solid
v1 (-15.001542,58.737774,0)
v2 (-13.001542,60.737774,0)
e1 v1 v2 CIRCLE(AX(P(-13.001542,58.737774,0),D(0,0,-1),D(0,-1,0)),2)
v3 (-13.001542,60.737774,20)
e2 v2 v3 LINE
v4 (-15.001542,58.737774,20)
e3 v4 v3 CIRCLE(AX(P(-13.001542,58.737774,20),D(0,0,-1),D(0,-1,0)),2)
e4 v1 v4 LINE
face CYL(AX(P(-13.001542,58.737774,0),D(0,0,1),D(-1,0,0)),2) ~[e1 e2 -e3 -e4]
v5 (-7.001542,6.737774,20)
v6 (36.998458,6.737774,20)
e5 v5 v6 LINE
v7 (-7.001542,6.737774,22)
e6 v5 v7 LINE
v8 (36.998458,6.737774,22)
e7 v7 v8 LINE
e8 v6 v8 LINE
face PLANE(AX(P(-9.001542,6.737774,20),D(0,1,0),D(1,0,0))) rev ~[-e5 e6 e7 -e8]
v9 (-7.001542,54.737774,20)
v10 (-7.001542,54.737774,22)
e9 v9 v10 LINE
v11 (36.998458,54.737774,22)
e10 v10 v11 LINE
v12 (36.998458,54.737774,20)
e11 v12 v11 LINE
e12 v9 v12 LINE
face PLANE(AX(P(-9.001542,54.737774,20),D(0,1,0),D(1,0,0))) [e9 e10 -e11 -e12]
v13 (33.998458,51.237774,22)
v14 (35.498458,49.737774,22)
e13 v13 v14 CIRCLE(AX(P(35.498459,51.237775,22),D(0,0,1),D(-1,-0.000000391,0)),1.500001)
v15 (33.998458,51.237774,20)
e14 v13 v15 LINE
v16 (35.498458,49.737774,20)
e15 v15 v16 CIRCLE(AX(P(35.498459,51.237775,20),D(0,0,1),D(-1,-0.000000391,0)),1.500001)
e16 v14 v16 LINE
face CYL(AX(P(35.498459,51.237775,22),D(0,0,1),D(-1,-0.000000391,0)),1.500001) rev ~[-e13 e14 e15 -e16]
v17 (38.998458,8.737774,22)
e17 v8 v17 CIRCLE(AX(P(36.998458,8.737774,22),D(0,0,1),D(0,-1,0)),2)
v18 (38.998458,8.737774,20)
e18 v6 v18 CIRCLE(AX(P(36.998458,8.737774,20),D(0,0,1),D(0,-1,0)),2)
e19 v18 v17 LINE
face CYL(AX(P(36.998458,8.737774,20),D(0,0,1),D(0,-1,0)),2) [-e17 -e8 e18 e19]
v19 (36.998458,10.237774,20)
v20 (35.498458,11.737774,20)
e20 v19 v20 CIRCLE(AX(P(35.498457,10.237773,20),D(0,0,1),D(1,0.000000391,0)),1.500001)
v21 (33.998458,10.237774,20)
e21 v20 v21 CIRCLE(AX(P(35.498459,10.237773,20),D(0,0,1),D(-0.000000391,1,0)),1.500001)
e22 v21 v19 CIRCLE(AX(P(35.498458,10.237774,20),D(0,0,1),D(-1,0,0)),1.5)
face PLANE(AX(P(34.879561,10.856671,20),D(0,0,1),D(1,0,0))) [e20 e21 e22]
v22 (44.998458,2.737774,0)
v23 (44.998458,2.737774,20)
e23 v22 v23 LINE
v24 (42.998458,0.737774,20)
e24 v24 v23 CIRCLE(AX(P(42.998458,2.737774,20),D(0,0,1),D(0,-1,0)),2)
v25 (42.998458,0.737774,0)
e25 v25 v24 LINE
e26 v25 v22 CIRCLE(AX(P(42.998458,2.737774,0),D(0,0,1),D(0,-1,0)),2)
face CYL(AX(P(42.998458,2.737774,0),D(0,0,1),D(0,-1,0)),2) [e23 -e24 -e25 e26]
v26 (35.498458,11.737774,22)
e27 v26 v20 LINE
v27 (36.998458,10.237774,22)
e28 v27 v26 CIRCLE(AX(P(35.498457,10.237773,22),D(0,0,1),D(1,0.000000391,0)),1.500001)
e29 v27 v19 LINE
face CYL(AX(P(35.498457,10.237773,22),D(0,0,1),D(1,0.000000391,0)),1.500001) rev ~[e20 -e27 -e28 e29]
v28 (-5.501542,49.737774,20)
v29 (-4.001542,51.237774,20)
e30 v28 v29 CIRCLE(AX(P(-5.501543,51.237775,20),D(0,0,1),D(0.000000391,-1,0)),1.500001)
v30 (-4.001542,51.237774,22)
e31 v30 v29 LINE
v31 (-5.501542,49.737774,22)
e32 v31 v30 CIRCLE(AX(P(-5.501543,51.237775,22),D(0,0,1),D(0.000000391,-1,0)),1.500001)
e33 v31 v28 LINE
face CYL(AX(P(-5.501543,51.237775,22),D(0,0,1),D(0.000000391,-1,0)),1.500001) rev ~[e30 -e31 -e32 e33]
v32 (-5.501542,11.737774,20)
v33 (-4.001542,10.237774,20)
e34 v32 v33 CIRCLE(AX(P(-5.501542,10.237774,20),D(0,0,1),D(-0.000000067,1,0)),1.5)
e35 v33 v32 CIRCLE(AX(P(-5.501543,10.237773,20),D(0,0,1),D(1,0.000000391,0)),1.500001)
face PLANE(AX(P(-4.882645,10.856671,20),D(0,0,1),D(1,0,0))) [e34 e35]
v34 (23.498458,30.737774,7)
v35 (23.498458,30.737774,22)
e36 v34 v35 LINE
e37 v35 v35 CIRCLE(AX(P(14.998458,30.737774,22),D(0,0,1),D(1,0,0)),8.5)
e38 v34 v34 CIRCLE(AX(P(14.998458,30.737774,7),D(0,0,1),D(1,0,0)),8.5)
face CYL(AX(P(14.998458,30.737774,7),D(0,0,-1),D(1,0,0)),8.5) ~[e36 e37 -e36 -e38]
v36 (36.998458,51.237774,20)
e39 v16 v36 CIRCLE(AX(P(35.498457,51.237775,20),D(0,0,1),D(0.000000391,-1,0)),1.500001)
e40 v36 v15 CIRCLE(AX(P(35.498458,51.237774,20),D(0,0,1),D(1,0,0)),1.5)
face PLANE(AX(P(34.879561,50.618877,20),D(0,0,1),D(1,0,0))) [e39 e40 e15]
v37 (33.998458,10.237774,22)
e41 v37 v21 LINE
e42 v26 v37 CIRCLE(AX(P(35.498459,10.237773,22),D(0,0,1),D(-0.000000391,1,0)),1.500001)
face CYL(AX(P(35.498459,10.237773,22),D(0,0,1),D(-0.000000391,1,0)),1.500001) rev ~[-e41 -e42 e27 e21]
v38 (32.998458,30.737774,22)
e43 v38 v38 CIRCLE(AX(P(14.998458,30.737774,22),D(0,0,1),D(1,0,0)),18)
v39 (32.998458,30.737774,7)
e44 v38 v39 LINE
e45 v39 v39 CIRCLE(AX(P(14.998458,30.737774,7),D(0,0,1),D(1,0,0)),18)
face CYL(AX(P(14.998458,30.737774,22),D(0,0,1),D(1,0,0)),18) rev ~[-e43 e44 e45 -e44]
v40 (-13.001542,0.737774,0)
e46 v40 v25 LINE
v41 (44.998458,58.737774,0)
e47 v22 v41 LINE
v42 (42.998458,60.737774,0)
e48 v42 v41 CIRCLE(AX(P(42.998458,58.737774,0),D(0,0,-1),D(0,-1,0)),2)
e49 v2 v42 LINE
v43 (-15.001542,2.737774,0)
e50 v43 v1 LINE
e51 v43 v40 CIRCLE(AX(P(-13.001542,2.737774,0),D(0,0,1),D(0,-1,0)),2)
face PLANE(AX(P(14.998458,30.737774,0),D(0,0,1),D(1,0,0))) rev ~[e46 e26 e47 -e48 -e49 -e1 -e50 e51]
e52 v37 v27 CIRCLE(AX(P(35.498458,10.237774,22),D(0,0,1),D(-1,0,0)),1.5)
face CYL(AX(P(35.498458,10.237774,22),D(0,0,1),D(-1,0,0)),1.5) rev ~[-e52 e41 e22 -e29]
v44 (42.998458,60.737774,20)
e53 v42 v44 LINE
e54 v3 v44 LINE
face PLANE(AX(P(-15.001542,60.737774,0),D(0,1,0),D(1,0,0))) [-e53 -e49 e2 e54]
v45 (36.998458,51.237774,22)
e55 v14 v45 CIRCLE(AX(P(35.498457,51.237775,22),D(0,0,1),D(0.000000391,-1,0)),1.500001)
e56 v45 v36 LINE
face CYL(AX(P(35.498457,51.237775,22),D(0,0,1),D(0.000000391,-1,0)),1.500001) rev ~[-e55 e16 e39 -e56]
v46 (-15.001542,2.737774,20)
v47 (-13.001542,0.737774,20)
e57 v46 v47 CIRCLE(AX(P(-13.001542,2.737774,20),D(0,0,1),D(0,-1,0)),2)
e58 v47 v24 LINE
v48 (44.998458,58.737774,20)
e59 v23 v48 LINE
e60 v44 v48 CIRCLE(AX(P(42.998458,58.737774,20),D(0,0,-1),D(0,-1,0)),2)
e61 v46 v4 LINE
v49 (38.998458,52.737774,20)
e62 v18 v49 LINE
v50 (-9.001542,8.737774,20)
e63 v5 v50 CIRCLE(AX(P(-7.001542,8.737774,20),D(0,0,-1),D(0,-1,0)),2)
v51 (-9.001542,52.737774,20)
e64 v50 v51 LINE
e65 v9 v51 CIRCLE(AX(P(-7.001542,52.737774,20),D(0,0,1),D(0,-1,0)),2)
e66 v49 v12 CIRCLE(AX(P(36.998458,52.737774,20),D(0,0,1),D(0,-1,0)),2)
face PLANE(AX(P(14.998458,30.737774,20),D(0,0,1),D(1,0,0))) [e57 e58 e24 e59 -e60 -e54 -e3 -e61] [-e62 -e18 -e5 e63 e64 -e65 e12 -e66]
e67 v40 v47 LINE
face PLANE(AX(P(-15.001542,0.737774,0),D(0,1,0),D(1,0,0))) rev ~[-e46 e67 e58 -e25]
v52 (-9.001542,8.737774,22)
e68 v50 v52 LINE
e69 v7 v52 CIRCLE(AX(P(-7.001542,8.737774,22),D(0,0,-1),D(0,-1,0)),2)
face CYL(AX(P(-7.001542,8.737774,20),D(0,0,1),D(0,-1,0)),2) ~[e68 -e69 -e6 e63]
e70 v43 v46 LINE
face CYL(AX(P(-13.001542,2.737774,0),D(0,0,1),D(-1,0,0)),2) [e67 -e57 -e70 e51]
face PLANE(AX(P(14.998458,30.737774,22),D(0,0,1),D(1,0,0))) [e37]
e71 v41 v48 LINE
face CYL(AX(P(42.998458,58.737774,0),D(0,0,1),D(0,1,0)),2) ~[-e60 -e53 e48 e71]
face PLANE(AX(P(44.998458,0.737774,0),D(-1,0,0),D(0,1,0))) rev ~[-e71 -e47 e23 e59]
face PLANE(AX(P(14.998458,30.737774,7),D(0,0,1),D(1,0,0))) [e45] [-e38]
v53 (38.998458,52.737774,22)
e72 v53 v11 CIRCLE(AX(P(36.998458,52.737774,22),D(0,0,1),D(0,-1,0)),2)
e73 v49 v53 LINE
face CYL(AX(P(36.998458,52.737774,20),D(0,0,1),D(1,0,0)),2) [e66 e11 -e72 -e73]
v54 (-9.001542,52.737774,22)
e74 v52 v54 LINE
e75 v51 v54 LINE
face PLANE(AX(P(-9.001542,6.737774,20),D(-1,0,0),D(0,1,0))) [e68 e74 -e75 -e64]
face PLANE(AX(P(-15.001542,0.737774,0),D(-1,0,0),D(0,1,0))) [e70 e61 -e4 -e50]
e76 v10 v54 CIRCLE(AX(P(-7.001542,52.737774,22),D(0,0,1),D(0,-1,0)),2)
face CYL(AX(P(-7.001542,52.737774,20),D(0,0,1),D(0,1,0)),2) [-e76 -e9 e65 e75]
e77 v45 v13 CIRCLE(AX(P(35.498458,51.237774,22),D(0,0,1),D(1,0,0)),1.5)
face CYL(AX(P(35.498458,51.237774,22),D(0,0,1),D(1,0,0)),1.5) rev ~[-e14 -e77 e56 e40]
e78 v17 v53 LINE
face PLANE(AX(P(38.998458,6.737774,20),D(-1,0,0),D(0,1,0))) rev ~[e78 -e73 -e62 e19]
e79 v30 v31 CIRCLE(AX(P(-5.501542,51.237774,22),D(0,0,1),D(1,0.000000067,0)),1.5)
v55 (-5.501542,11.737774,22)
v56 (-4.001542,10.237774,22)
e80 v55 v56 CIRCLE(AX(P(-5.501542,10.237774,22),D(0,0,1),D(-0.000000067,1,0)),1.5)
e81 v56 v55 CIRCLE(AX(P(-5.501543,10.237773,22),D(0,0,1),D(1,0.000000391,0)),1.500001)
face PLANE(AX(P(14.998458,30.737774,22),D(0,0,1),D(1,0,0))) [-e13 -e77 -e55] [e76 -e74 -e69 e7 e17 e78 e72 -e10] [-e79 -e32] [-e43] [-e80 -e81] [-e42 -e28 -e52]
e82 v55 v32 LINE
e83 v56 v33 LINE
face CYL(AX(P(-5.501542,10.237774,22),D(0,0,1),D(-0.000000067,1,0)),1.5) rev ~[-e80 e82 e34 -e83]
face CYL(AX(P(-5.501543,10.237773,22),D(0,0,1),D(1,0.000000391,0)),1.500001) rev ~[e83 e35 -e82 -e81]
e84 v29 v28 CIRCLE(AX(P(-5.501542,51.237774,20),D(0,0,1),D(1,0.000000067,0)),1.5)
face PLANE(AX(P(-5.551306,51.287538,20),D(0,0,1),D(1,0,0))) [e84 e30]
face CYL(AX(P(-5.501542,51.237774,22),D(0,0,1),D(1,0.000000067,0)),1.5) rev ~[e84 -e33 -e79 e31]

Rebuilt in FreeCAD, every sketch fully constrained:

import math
import FreeCAD as App
import Part
import Sketcher
Q = App.Units.Quantity


def edges_at(feature, points):
    """Names of the edges that pass closest to the given points."""
    edges = feature.Shape.Edges
    near = lambda p: min(range(len(edges)), key=lambda i: edges[i].distToShape(Part.Vertex(*p))[0])
    return sorted({f"Edge{near(p) + 1}" for p in points})


def add_polygon(sketch, points):
    """Adds a closed chain of lines whose ends are joined by coincident constraints."""
    first, n = sketch.GeometryCount, len(points)
    for a, b in zip(points, points[1:] + points[:1]):
        sketch.addGeometry(Part.LineSegment(App.Vector(*a, 0), App.Vector(*b, 0)), False)
    for i in range(n):
        sketch.addConstraint(Sketcher.Constraint("Coincident", first + i, 2, first + (i + 1) % n, 1))

doc = App.newDocument("Part")
body = doc.addObject("PartDesign::Body", "Body")

sketch1 = body.newObject("Sketcher::SketchObject", "Sketch")
sketch1.AttachmentSupport = (doc.getObject("XY_Plane"), [""])
sketch1.MapMode = "FlatFace"
add_polygon(sketch1, [(-15, 61), (-15, 1), (45, 1), (45, 61)])
sketch1.addConstraint(Sketcher.Constraint("Vertical", 0))
sketch1.addConstraint(Sketcher.Constraint("Horizontal", 1))
sketch1.addConstraint(Sketcher.Constraint("Vertical", 2))
sketch1.addConstraint(Sketcher.Constraint("Horizontal", 3))
sketch1.addConstraint(Sketcher.Constraint("Equal", 3, 0))
sketch1.addConstraint(Sketcher.Constraint("DistanceX", 1, 1, 1, 2, Q("60 mm")))
sketch1.addConstraint(Sketcher.Constraint("DistanceX", 0, 2, -1, 1, Q("15.001542 mm")))
sketch1.addConstraint(Sketcher.Constraint("DistanceY", -1, 1, 0, 2, Q("0.737774 mm")))
pad1 = body.newObject("PartDesign::Pad", "Pad")
pad1.Profile = sketch1
pad1.Length = 20

sketch2 = body.newObject("Sketcher::SketchObject", "Sketch001")
sketch2.AttachmentSupport = (doc.getObject("XY_Plane"), [""])
sketch2.MapMode = "FlatFace"
sketch2.AttachmentOffset = App.Placement(App.Vector(0, 0, 20), App.Rotation())
add_polygon(sketch2, [(-9, 55), (-9, 7), (39, 7), (39, 55)])
sketch2.addConstraint(Sketcher.Constraint("Vertical", 0))
sketch2.addConstraint(Sketcher.Constraint("Horizontal", 1))
sketch2.addConstraint(Sketcher.Constraint("Vertical", 2))
sketch2.addConstraint(Sketcher.Constraint("Horizontal", 3))
sketch2.addConstraint(Sketcher.Constraint("Equal", 3, 0))
sketch2.addConstraint(Sketcher.Constraint("DistanceX", 1, 1, 1, 2, Q("48 mm")))
sketch2.addConstraint(Sketcher.Constraint("DistanceX", 0, 2, -1, 1, Q("9.001542 mm")))
sketch2.addConstraint(Sketcher.Constraint("DistanceY", -1, 1, 0, 2, Q("6.737774 mm")))
pad2 = body.newObject("PartDesign::Pad", "Pad001")
pad2.Profile = sketch2
pad2.Length = 2

sketch3 = body.newObject("Sketcher::SketchObject", "Sketch002")
sketch3.AttachmentSupport = (doc.getObject("XY_Plane"), [""])
sketch3.MapMode = "FlatFace"
sketch3.AttachmentOffset = App.Placement(App.Vector(0, 0, 22), App.Rotation())
sketch3.addGeometry(Part.ArcOfCircle(Part.Circle(App.Vector(-5.5, 51.2, 0), App.Vector(0, 0, 1), 1.5), math.radians(0), math.radians(270)), False)
sketch3.addGeometry(Part.ArcOfCircle(Part.Circle(App.Vector(-5.5, 51.2, 0), App.Vector(0, 0, 1), 1.5), math.radians(-90), math.radians(0)), False)
sketch3.addGeometry(Part.ArcOfCircle(Part.Circle(App.Vector(35.5, 51.2, 0), App.Vector(0, 0, 1), 1.5), math.radians(-180), math.radians(-90)), False)
sketch3.addGeometry(Part.ArcOfCircle(Part.Circle(App.Vector(35.5, 51.2, 0), App.Vector(0, 0, 1), 1.5), math.radians(-90), math.radians(0)), False)
sketch3.addGeometry(Part.ArcOfCircle(Part.Circle(App.Vector(35.5, 51.2, 0), App.Vector(0, 0, 1), 1.5), math.radians(0), math.radians(180)), False)
sketch3.addGeometry(Part.ArcOfCircle(Part.Circle(App.Vector(35.5, 10.2, 0), App.Vector(0, 0, 1), 1.5), math.radians(90), math.radians(180)), False)
sketch3.addGeometry(Part.ArcOfCircle(Part.Circle(App.Vector(35.5, 10.2, 0), App.Vector(0, 0, 1), 1.5), math.radians(180), math.radians(360)), False)
sketch3.addGeometry(Part.ArcOfCircle(Part.Circle(App.Vector(35.5, 10.2, 0), App.Vector(0, 0, 1), 1.5), math.radians(0), math.radians(90)), False)
sketch3.addGeometry(Part.ArcOfCircle(Part.Circle(App.Vector(-5.5, 10.2, 0), App.Vector(0, 0, 1), 1.5), math.radians(0), math.radians(90)), False)
sketch3.addGeometry(Part.ArcOfCircle(Part.Circle(App.Vector(-5.5, 10.2, 0), App.Vector(0, 0, 1), 1.5), math.radians(90), math.radians(360)), False)
sketch3.addConstraint(Sketcher.Constraint("Tangent", 0, 1, 1, 2))
sketch3.addConstraint(Sketcher.Constraint("Coincident", 1, 1, 0, 2))
sketch3.addConstraint(Sketcher.Constraint("Tangent", 2, 2, 3, 1))
sketch3.addConstraint(Sketcher.Constraint("Tangent", 3, 2, 4, 1))
sketch3.addConstraint(Sketcher.Constraint("Tangent", 4, 2, 2, 1))
sketch3.addConstraint(Sketcher.Constraint("Tangent", 5, 2, 6, 1))
sketch3.addConstraint(Sketcher.Constraint("Tangent", 6, 2, 7, 1))
sketch3.addConstraint(Sketcher.Constraint("Tangent", 7, 2, 5, 1))
sketch3.addConstraint(Sketcher.Constraint("Tangent", 8, 1, 9, 2))
sketch3.addConstraint(Sketcher.Constraint("Coincident", 9, 1, 8, 2))
sketch3.addConstraint(Sketcher.Constraint("Equal", 1, 2))
sketch3.addConstraint(Sketcher.Constraint("Equal", 4, 5))
sketch3.addConstraint(Sketcher.Constraint("Equal", 7, 8))
sketch3.addConstraint(Sketcher.Constraint("Horizontal", 1, 3, 2, 3))
sketch3.addConstraint(Sketcher.Constraint("Horizontal", 7, 3, 8, 3))
sketch3.addConstraint(Sketcher.Constraint("Horizontal", 4, 3, 0, 1))
sketch3.addConstraint(Sketcher.Constraint("Horizontal", 0, 1, 3, 2))
sketch3.addConstraint(Sketcher.Constraint("Horizontal", 3, 2, 4, 2))
sketch3.addConstraint(Sketcher.Constraint("Horizontal", 9, 3, 5, 2))
sketch3.addConstraint(Sketcher.Constraint("Horizontal", 5, 2, 6, 2))
sketch3.addConstraint(Sketcher.Constraint("Horizontal", 6, 2, 8, 1))
sketch3.addConstraint(Sketcher.Constraint("Vertical", 4, 3, 5, 3))
sketch3.addConstraint(Sketcher.Constraint("Vertical", 1, 3, 8, 3))
sketch3.addConstraint(Sketcher.Constraint("Vertical", 9, 3, 1, 1))
sketch3.addConstraint(Sketcher.Constraint("Vertical", 7, 3, 2, 2))
sketch3.addConstraint(Sketcher.Constraint("Vertical", 2, 2, 7, 2))
sketch3.addConstraint(Sketcher.Constraint("Vertical", 1, 1, 9, 1))
sketch3.addConstraint(Sketcher.Constraint("Radius", 0, Q("1.5 mm")))
sketch3.addConstraint(Sketcher.Constraint("DistanceX", 0, 3, 2, 3, Q("41 mm")))
sketch3.addConstraint(Sketcher.Constraint("DistanceY", 5, 3, 4, 3, Q("41.000001 mm")))
sketch3.addConstraint(Sketcher.Constraint("DistanceX", 0, 3, -1, 1, Q("5.501542 mm")))
sketch3.addConstraint(Sketcher.Constraint("DistanceY", -1, 1, 0, 3, Q("51.237774 mm")))
pocket1 = body.newObject("PartDesign::Pocket", "Pocket")
pocket1.Profile = sketch3
pocket1.Length = 2

sketch4 = body.newObject("Sketcher::SketchObject", "Sketch003")
sketch4.AttachmentSupport = (doc.getObject("XY_Plane"), [""])
sketch4.MapMode = "FlatFace"
sketch4.AttachmentOffset = App.Placement(App.Vector(0, 0, 22), App.Rotation())
sketch4.addGeometry(Part.Circle(App.Vector(15, 31, 0), App.Vector(0, 0, 1), 18), False)
sketch4.addConstraint(Sketcher.Constraint("Diameter", 0, Q("36 mm")))
sketch4.addConstraint(Sketcher.Constraint("DistanceX", -1, 1, 0, 3, Q("14.998458 mm")))
sketch4.addConstraint(Sketcher.Constraint("DistanceY", -1, 1, 0, 3, Q("30.737774 mm")))
pocket2 = body.newObject("PartDesign::Pocket", "Pocket001")
pocket2.Profile = sketch4
pocket2.Length = 15

sketch5 = body.newObject("Sketcher::SketchObject", "Sketch004")
sketch5.AttachmentSupport = (doc.getObject("XY_Plane"), [""])
sketch5.MapMode = "FlatFace"
sketch5.AttachmentOffset = App.Placement(App.Vector(0, 0, 7), App.Rotation())
sketch5.addGeometry(Part.Circle(App.Vector(15, 31, 0), App.Vector(0, 0, 1), 8), False)
sketch5.addConstraint(Sketcher.Constraint("Diameter", 0, Q("17 mm")))
sketch5.addConstraint(Sketcher.Constraint("DistanceX", -1, 1, 0, 3, Q("14.998458 mm")))
sketch5.addConstraint(Sketcher.Constraint("DistanceY", -1, 1, 0, 3, Q("30.737774 mm")))
pad3 = body.newObject("PartDesign::Pad", "Pad002")
pad3.Profile = sketch5
pad3.Length = 15
doc.recompute()

fillet = body.newObject("PartDesign::Fillet", "Fillet")
fillet.Base = (pad3, edges_at(pad3, [
    (44.998, 60.738, 10),
    (44.998, 0.738, 10),
    (-15.002, 0.738, 10),
    (-15.002, 60.738, 10),
    (-9.002, 54.738, 21),
    (-9.002, 6.738, 21),
    (38.998, 6.738, 21),
    (38.998, 54.738, 21),
]))
fillet.Radius = 2

doc.recompute()
